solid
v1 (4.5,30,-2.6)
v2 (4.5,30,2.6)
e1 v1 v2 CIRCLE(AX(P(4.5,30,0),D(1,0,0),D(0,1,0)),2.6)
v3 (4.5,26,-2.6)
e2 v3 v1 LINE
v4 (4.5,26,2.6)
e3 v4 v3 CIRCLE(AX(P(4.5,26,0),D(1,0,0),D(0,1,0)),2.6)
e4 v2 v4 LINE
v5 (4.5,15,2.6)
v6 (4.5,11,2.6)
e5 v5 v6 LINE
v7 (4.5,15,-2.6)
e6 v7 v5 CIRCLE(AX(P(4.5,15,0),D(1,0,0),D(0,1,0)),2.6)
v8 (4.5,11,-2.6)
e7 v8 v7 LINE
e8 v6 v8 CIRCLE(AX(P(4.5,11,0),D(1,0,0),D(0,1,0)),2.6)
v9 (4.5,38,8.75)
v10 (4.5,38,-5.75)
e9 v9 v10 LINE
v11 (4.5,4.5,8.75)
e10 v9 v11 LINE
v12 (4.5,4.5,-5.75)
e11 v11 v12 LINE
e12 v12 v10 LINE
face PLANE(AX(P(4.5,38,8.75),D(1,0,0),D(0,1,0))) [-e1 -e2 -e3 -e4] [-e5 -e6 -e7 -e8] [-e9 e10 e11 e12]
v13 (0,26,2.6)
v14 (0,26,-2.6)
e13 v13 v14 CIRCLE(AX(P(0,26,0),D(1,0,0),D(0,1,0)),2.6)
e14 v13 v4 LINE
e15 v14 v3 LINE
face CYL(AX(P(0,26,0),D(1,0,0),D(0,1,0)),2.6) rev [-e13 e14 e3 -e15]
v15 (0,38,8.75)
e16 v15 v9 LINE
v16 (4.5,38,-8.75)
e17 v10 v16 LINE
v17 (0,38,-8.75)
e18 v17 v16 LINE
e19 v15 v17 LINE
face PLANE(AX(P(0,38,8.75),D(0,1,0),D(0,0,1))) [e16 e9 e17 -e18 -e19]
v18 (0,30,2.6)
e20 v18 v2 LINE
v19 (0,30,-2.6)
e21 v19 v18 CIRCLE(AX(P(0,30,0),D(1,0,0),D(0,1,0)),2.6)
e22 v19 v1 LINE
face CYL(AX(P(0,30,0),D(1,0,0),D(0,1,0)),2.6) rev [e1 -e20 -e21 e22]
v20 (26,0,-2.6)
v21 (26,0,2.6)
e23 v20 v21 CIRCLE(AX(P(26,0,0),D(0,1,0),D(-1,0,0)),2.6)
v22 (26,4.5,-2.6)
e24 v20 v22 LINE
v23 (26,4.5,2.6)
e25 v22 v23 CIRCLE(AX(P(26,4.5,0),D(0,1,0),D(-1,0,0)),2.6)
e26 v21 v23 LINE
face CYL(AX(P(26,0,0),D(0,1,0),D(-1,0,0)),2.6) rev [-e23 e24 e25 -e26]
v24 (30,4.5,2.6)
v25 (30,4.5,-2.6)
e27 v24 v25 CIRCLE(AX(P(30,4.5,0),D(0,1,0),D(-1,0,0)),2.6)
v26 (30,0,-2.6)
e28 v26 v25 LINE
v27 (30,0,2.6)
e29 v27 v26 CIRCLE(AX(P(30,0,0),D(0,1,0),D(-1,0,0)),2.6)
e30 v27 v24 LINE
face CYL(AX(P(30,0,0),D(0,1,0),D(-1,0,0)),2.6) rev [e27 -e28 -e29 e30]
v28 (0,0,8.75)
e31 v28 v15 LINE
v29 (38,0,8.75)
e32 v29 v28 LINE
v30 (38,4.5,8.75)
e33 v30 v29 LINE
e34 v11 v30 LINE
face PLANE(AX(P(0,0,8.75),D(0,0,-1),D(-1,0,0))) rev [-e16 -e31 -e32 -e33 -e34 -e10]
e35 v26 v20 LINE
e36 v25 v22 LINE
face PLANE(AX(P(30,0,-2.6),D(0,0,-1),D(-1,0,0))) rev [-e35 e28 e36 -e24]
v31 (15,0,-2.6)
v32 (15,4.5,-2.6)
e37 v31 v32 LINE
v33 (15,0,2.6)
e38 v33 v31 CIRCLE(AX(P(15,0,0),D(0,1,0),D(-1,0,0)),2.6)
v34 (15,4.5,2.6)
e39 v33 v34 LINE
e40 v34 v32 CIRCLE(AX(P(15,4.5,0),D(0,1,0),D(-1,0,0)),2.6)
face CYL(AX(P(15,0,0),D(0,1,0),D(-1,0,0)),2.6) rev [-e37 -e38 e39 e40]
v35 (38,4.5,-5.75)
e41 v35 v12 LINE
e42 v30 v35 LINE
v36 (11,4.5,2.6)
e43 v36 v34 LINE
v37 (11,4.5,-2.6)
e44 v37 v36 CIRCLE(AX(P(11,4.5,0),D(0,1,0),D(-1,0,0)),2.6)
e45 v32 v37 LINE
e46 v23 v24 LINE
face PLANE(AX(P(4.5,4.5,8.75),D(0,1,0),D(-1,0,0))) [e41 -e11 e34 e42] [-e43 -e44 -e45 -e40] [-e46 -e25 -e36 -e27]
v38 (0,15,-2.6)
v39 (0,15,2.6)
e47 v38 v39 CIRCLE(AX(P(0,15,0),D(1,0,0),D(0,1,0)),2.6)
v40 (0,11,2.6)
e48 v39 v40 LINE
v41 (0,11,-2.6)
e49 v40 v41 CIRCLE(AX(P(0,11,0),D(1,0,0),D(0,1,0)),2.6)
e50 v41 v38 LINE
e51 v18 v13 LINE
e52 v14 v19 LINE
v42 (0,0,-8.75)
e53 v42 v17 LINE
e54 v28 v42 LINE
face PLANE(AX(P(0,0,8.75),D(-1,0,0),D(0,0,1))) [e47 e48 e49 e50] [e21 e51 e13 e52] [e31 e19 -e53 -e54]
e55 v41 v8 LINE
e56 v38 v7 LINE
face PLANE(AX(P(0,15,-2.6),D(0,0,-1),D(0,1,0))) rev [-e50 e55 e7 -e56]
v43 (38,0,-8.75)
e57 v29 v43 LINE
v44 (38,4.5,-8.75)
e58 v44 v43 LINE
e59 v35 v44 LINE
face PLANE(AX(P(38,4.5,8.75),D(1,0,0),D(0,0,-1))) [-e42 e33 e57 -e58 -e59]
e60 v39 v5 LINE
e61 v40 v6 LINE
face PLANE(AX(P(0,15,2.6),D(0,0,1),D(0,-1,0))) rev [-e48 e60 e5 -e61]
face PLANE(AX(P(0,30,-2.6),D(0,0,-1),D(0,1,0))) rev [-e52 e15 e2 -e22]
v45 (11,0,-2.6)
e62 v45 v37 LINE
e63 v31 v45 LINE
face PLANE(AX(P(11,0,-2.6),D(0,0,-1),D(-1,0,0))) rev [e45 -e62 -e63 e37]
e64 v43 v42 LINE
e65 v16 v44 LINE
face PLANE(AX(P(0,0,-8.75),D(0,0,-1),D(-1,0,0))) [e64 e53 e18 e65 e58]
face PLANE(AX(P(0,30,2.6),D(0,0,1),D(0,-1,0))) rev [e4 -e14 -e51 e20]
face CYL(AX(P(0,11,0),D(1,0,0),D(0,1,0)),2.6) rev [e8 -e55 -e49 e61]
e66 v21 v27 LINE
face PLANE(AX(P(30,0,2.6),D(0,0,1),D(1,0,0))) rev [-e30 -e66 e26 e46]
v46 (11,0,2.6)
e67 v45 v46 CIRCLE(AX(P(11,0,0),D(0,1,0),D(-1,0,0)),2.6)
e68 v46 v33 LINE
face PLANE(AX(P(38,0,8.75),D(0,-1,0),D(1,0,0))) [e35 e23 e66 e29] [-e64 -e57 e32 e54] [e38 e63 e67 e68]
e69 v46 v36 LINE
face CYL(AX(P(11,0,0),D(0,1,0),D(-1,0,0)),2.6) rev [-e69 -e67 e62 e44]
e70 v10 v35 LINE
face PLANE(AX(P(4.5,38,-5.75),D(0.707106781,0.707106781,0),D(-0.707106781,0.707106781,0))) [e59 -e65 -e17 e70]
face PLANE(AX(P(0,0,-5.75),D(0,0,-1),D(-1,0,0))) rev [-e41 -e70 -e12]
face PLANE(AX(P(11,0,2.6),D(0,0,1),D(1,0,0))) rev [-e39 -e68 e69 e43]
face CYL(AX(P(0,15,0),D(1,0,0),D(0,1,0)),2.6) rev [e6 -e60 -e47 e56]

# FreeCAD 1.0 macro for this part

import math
import FreeCAD as App
import Part
import Sketcher
Q = App.Units.Quantity


def add_polygon(sketch, points):
    """Adds a closed chain of lines whose ends are joined by coincident constraints."""
    first, n = sketch.GeometryCount, len(points)
    for a, b in zip(points, points[1:] + points[:1]):
        sketch.addGeometry(Part.LineSegment(App.Vector(*a, 0), App.Vector(*b, 0)), False)
    for i in range(n):
        sketch.addConstraint(Sketcher.Constraint("Coincident", first + i, 2, first + (i + 1) % n, 1))

doc = App.newDocument("Part")
body = doc.addObject("PartDesign::Body", "Body")

# Sketch on XY plane
sketch1 = body.newObject("Sketcher::SketchObject", "Sketch")
sketch1.AttachmentSupport = (doc.getObject("XY_Plane"), [""])
sketch1.MapMode = "FlatFace"
add_polygon(sketch1, [(0, 38), (0, 0), (38, 0), (38, 4.5), (4.5, 4.5), (4.5, 38)])  # lines 0-5
sketch1.addConstraint(Sketcher.Constraint("Vertical", 0))
sketch1.addConstraint(Sketcher.Constraint("Horizontal", 1))
sketch1.addConstraint(Sketcher.Constraint("Vertical", 2))
sketch1.addConstraint(Sketcher.Constraint("Horizontal", 3))
sketch1.addConstraint(Sketcher.Constraint("Vertical", 4))
sketch1.addConstraint(Sketcher.Constraint("Horizontal", 5))
sketch1.addConstraint(Sketcher.Constraint("Coincident", 0, 2, -1, 1))
sketch1.addConstraint(Sketcher.Constraint("Equal", 1, 0))
sketch1.addConstraint(Sketcher.Constraint("Equal", 5, 2))
sketch1.addConstraint(Sketcher.Constraint("DistanceX", 1, 1, 1, 2, Q("38 mm")))
sketch1.addConstraint(Sketcher.Constraint("DistanceX", 3, 2, 3, 1, Q("33.5 mm")))
pad1 = body.newObject("PartDesign::Pad", "Pad")
pad1.Profile = sketch1
pad1.Length = 17.5
pad1.Midplane = True

# Sketch on XY plane
sketch2 = body.newObject("Sketcher::SketchObject", "Sketch001")
sketch2.AttachmentSupport = (doc.getObject("XY_Plane"), [""])
sketch2.MapMode = "FlatFace"
sketch2.AttachmentOffset = App.Placement(App.Vector(0, 0, -8.75), App.Rotation())
add_polygon(sketch2, [(4.5, 38), (38, 4.5), (38, 0), (0, 0), (0, 38)])  # lines 0-4
sketch2.addConstraint(Sketcher.Constraint("Vertical", 1))
sketch2.addConstraint(Sketcher.Constraint("Horizontal", 2))
sketch2.addConstraint(Sketcher.Constraint("Vertical", 3))
sketch2.addConstraint(Sketcher.Constraint("Horizontal", 4))
sketch2.addConstraint(Sketcher.Constraint("Coincident", 2, 2, -1, 1))
sketch2.addConstraint(Sketcher.Constraint("Equal", 4, 1))
sketch2.addConstraint(Sketcher.Constraint("Equal", 2, 3))
sketch2.addConstraint(Sketcher.Constraint("DistanceX", 2, 2, 2, 1, Q("38 mm")))
sketch2.addConstraint(Sketcher.Constraint("DistanceX", 4, 1, 4, 2, Q("4.5 mm")))
pad2 = body.newObject("PartDesign::Pad", "Pad001")
pad2.Profile = sketch2
pad2.Length = 3

# Sketch on XZ plane
sketch3 = body.newObject("Sketcher::SketchObject", "Sketch002")
sketch3.AttachmentSupport = (doc.getObject("XZ_Plane"), [""])
sketch3.MapMode = "FlatFace"
sketch3.AttachmentOffset = App.Placement(App.Vector(0, 0, -4.5), App.Rotation())
sketch3.addGeometry(Part.LineSegment(App.Vector(26, 2.6, 0), App.Vector(30, 2.6, 0)), False)
sketch3.addGeometry(Part.ArcOfCircle(Part.Circle(App.Vector(30, 0, 0), App.Vector(0, 0, 1), 2.6), math.radians(-90), math.radians(90)), False)
sketch3.addGeometry(Part.LineSegment(App.Vector(30, -2.6, 0), App.Vector(26, -2.6, 0)), False)
sketch3.addGeometry(Part.ArcOfCircle(Part.Circle(App.Vector(26, 0, 0), App.Vector(0, 0, 1), 2.6), math.radians(90), math.radians(270)), False)
sketch3.addGeometry(Part.LineSegment(App.Vector(15, -2.6, 0), App.Vector(11, -2.6, 0)), False)
sketch3.addGeometry(Part.ArcOfCircle(Part.Circle(App.Vector(11, 0, 0), App.Vector(0, 0, 1), 2.6), math.radians(90), math.radians(270)), False)
sketch3.addGeometry(Part.LineSegment(App.Vector(11, 2.6, 0), App.Vector(15, 2.6, 0)), False)
sketch3.addGeometry(Part.ArcOfCircle(Part.Circle(App.Vector(15, 0, 0), App.Vector(0, 0, 1), 2.6), math.radians(-90), math.radians(90)), False)
sketch3.addConstraint(Sketcher.Constraint("Tangent", 0, 2, 1, 2))
sketch3.addConstraint(Sketcher.Constraint("Tangent", 1, 1, 2, 1))
sketch3.addConstraint(Sketcher.Constraint("Tangent", 2, 2, 3, 2))
sketch3.addConstraint(Sketcher.Constraint("Tangent", 3, 1, 0, 1))
sketch3.addConstraint(Sketcher.Constraint("Tangent", 4, 2, 5, 2))
sketch3.addConstraint(Sketcher.Constraint("Tangent", 5, 1, 6, 1))
sketch3.addConstraint(Sketcher.Constraint("Tangent", 6, 2, 7, 2))
sketch3.addConstraint(Sketcher.Constraint("Tangent", 7, 1, 4, 1))
sketch3.addConstraint(Sketcher.Constraint("Horizontal", 0))
sketch3.addConstraint(Sketcher.Constraint("Horizontal", 2))
sketch3.addConstraint(Sketcher.Constraint("Horizontal", 4))
sketch3.addConstraint(Sketcher.Constraint("Horizontal", 6))
sketch3.addConstraint(Sketcher.Constraint("Equal", 3, 5))
sketch3.addConstraint(Sketcher.Constraint("PointOnObject", 1, 3, -1))
sketch3.addConstraint(Sketcher.Constraint("PointOnObject", 5, 3, -1))
sketch3.addConstraint(Sketcher.Constraint("Equal", 2, 4))
sketch3.addConstraint(Sketcher.Constraint("Radius", 1, Q("2.6 mm")))
sketch3.addConstraint(Sketcher.Constraint("DistanceX", 0, 1, 0, 2, Q("4 mm")))
sketch3.addConstraint(Sketcher.Constraint("DistanceX", -1, 1, 1, 3, Q("30 mm")))
sketch3.addConstraint(Sketcher.Constraint("DistanceX", -1, 1, 5, 3, Q("11 mm")))
pocket1 = body.newObject("PartDesign::Pocket", "Pocket")
pocket1.Profile = sketch3
pocket1.Length = 4.5
pocket1.Reversed = True

# Sketch on YZ plane
sketch4 = body.newObject("Sketcher::SketchObject", "Sketch003")
sketch4.AttachmentSupport = (doc.getObject("YZ_Plane"), [""])
sketch4.MapMode = "FlatFace"
sketch4.AttachmentOffset = App.Placement(App.Vector(0, 0, 4.5), App.Rotation())
sketch4.addGeometry(Part.LineSegment(App.Vector(26, -2.6, 0), App.Vector(30, -2.6, 0)), False)
sketch4.addGeometry(Part.ArcOfCircle(Part.Circle(App.Vector(30, 0, 0), App.Vector(0, 0, 1), 2.6), math.radians(-90), math.radians(90)), False)
sketch4.addGeometry(Part.LineSegment(App.Vector(30, 2.6, 0), App.Vector(26, 2.6, 0)), False)
sketch4.addGeometry(Part.ArcOfCircle(Part.Circle(App.Vector(26, 0, 0), App.Vector(0, 0, 1), 2.6), math.radians(90), math.radians(270)), False)
sketch4.addGeometry(Part.LineSegment(App.Vector(11, -2.6, 0), App.Vector(15, -2.6, 0)), False)
sketch4.addGeometry(Part.ArcOfCircle(Part.Circle(App.Vector(15, 0, 0), App.Vector(0, 0, 1), 2.6), math.radians(-90), math.radians(90)), False)
sketch4.addGeometry(Part.LineSegment(App.Vector(15, 2.6, 0), App.Vector(11, 2.6, 0)), False)
sketch4.addGeometry(Part.ArcOfCircle(Part.Circle(App.Vector(11, 0, 0), App.Vector(0, 0, 1), 2.6), math.radians(90), math.radians(270)), False)
sketch4.addConstraint(Sketcher.Constraint("Tangent", 0, 2, 1, 1))
sketch4.addConstraint(Sketcher.Constraint("Tangent", 1, 2, 2, 1))
sketch4.addConstraint(Sketcher.Constraint("Tangent", 2, 2, 3, 1))
sketch4.addConstraint(Sketcher.Constraint("Tangent", 3, 2, 0, 1))
sketch4.addConstraint(Sketcher.Constraint("Tangent", 4, 2, 5, 1))
sketch4.addConstraint(Sketcher.Constraint("Tangent", 5, 2, 6, 1))
sketch4.addConstraint(Sketcher.Constraint("Tangent", 6, 2, 7, 1))
sketch4.addConstraint(Sketcher.Constraint("Tangent", 7, 2, 4, 1))
sketch4.addConstraint(Sketcher.Constraint("Horizontal", 0))
sketch4.addConstraint(Sketcher.Constraint("Horizontal", 2))
sketch4.addConstraint(Sketcher.Constraint("Horizontal", 4))
sketch4.addConstraint(Sketcher.Constraint("Horizontal", 6))
sketch4.addConstraint(Sketcher.Constraint("Equal", 3, 5))
sketch4.addConstraint(Sketcher.Constraint("PointOnObject", 1, 3, -1))
sketch4.addConstraint(Sketcher.Constraint("PointOnObject", 5, 3, -1))
sketch4.addConstraint(Sketcher.Constraint("Equal", 2, 4))
sketch4.addConstraint(Sketcher.Constraint("Radius", 1, Q("2.6 mm")))
sketch4.addConstraint(Sketcher.Constraint("DistanceX", 0, 1, 0, 2, Q("4 mm")))
sketch4.addConstraint(Sketcher.Constraint("DistanceX", -1, 1, 1, 3, Q("30 mm")))
sketch4.addConstraint(Sketcher.Constraint("DistanceX", -1, 1, 5, 3, Q("15 mm")))
pocket2 = body.newObject("PartDesign::Pocket", "Pocket001")
pocket2.Profile = sketch4
pocket2.Length = 4.5

doc.recompute()
